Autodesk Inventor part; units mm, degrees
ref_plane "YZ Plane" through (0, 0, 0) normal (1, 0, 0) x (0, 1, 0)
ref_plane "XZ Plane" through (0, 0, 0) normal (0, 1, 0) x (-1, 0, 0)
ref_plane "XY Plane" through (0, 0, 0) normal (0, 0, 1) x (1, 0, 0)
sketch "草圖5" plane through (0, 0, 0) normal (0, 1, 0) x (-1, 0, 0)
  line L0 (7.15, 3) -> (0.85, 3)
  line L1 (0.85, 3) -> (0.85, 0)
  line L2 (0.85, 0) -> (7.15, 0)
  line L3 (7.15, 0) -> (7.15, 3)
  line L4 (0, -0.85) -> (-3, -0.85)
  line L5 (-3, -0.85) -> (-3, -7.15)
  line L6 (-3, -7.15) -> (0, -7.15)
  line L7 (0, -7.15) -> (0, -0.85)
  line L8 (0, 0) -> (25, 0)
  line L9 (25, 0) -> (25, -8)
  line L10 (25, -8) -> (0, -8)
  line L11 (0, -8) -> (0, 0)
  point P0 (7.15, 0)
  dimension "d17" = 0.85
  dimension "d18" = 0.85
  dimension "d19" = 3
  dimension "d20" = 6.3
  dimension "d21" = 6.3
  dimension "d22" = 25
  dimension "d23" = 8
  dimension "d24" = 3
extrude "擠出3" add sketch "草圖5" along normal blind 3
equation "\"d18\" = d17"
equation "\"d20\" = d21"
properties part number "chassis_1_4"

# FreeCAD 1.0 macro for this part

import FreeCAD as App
import Part
import Sketcher


def add_polygon(sketch, points):
    """Adds a closed chain of lines whose ends are joined by coincident constraints."""
    first, n = sketch.GeometryCount, len(points)
    for a, b in zip(points, points[1:] + points[:1]):
        sketch.addGeometry(Part.LineSegment(App.Vector(*a, 0), App.Vector(*b, 0)), False)
    for i in range(n):
        sketch.addConstraint(Sketcher.Constraint("Coincident", first + i, 2, first + (i + 1) % n, 1))

doc = App.newDocument("Part")
body = doc.addObject("PartDesign::Body", "Body")

# Sketch on XZ plane
sketch1 = body.newObject("Sketcher::SketchObject", "Sketch")
sketch1.AttachmentSupport = (doc.getObject("XZ_Plane"), [""])
sketch1.MapMode = "FlatFace"
add_polygon(sketch1, [(-7.2, 0), (-7.2, 3), (-0.8, 3), (-0.8, 0), (0, 0), (0, -0.8), (3, -0.8), (3, -7.2), (0, -7.2), (0, -8), (-25, -8), (-25, 0)])  # lines 0-11
sketch1.addConstraint([
    Sketcher.Constraint("Vertical", 0),
    Sketcher.Constraint("Horizontal", 1),
    Sketcher.Constraint("Vertical", 2),
    Sketcher.Constraint("Horizontal", 3),
    Sketcher.Constraint("Vertical", 4),
    Sketcher.Constraint("Horizontal", 5),
    Sketcher.Constraint("Vertical", 6),
    Sketcher.Constraint("Horizontal", 7),
    Sketcher.Constraint("Vertical", 8),
    Sketcher.Constraint("Horizontal", 9),
    Sketcher.Constraint("Vertical", 10),
    Sketcher.Constraint("Horizontal", 11),
    Sketcher.Constraint("Coincident", 3, 2, -1, 1),
    Sketcher.Constraint("PointOnObject", 7, 2, -2),
    Sketcher.Constraint("PointOnObject", 10, 2, -1),
    Sketcher.Constraint("Equal", 7, 0),
    Sketcher.Constraint("Equal", 3, 4),
    Sketcher.Constraint("Equal", 1, 6),
    Sketcher.Constraint("Equal", 4, 8),
    Sketcher.Constraint("DistanceX", 5, 1, 5, 2, 3.0),
    Sketcher.Constraint("DistanceX", 9, 2, 9, 1, 25.0),
    Sketcher.Constraint("DistanceY", 10, 1, 10, 2, 8.0),
    Sketcher.Constraint("DistanceX", 1, 1, 1, 2, 6.3),
])
pad1 = body.newObject("PartDesign::Pad", "Pad")
pad1.Profile = sketch1
pad1.Length = 3
pad1.Reversed = True

doc.recompute()
